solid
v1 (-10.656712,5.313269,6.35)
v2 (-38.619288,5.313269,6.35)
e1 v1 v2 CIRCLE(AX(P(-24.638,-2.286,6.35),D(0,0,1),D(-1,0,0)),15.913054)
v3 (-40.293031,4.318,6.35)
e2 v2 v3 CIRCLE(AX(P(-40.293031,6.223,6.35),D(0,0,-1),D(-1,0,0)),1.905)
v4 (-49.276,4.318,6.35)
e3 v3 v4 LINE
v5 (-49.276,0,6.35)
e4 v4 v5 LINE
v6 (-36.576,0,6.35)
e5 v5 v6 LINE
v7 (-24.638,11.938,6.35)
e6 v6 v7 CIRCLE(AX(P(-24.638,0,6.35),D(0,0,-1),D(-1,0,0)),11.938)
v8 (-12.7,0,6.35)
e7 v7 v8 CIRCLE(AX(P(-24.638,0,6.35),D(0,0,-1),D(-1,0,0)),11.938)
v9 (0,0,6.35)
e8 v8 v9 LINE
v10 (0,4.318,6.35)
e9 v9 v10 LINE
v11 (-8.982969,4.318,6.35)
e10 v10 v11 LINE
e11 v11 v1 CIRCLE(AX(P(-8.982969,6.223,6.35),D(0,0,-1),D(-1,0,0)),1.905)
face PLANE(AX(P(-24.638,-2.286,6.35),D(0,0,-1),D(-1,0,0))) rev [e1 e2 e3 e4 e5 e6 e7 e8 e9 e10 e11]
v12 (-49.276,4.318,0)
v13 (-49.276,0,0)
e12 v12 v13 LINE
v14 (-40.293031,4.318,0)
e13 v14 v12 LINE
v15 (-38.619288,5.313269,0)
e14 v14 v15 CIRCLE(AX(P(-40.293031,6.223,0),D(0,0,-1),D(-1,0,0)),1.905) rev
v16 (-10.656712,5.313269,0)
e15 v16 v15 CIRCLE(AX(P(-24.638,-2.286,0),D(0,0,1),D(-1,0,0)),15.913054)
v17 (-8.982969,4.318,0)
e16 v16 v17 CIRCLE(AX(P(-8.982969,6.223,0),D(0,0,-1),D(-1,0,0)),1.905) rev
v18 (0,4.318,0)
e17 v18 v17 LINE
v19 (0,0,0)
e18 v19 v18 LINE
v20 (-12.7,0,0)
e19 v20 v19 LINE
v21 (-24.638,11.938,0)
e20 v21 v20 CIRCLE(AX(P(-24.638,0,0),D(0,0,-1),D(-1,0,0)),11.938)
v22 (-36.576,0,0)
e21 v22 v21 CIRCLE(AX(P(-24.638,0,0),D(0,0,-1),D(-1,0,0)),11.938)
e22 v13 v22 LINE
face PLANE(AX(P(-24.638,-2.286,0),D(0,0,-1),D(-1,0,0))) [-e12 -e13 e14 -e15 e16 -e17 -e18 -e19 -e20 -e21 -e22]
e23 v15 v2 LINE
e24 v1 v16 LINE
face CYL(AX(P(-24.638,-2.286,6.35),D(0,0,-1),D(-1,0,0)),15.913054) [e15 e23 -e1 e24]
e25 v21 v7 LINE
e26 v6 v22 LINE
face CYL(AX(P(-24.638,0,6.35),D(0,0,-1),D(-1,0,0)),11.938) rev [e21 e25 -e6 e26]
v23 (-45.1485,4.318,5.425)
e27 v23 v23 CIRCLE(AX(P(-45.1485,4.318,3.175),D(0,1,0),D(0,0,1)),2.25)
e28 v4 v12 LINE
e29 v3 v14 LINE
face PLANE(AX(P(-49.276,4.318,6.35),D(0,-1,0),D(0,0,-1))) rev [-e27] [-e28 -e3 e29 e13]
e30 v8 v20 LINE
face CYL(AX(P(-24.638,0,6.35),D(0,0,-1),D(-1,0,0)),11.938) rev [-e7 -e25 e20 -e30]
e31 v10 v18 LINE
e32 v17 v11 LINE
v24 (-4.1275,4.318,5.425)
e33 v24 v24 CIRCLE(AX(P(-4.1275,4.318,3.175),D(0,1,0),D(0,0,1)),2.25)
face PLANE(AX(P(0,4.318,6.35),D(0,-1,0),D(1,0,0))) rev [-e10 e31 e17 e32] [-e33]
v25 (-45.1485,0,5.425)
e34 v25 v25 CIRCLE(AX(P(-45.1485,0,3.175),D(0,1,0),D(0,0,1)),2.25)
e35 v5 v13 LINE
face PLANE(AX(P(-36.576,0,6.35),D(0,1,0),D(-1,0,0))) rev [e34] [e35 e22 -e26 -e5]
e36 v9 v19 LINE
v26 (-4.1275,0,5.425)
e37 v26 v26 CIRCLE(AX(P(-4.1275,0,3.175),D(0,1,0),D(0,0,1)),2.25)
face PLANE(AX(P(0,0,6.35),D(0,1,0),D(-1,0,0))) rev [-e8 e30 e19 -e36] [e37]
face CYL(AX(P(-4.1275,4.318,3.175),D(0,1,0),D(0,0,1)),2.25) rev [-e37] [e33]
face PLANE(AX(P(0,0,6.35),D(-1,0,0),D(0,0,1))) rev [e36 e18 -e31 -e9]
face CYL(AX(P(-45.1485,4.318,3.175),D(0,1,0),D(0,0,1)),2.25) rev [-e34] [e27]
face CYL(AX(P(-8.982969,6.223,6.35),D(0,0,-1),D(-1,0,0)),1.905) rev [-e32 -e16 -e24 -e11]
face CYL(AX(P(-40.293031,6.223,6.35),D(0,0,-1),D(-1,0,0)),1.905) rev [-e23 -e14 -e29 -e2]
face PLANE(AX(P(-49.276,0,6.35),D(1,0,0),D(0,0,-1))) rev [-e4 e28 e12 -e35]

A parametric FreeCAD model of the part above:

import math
import FreeCAD as App
import Part
import Sketcher
from FreeCAD import Vector
Q = App.Units.Quantity


def edges_at(feature, points):
    """Names of the edges that pass closest to the given points."""
    edges = feature.Shape.Edges
    near = lambda p: min(range(len(edges)), key=lambda i: edges[i].distToShape(Part.Vertex(*p))[0])
    return sorted({f"Edge{near(p) + 1}" for p in points})

doc = App.newDocument("Part")
params = doc.addObject("Spreadsheet::Sheet", "Params")
for row, (alias, value) in enumerate([
    ("sketch1_radius", "0.47 in"),
    ("sketch1_width", "0.5 in"),
    ("sketch1_width2", "0.4 in"),
    ("sketch1_height", "0.17 in"),
    ("pad1_length", "0.25 in"),
    ("hole_diameter", "4.5 mm"),
    ("fillet_radius", "0.075 in"),
], start=1):
    params.set(f"A{row}", alias)
    params.set(f"B{row}", "=" + value)
    params.setAlias(f"B{row}", alias)

body = doc.addObject("PartDesign::Body", "Body")

sketch1 = body.newObject("Sketcher::SketchObject", "Sketch")
sketch1.AttachmentSupport = (doc.getObject("XY_Plane"), [""])
sketch1.MapMode = "FlatFace"
sketch1.addGeometry([
    Part.LineSegment(Vector(-12.7, 0, 0), Vector(0, 0, 0)),
    Part.LineSegment(Vector(0, 0, 0), Vector(0, 4.3, 0)),
    Part.LineSegment(Vector(0, 4.3, 0), Vector(-10.2, 4.3, 0)),
    Part.ArcOfCircle(Part.Circle(Vector(-24.6, -2.3, 0), Vector(0, 0, 1), 15.9), math.radians(25), math.radians(155)),
    Part.LineSegment(Vector(-39.1, 4.3, 0), Vector(-49.3, 4.3, 0)),
    Part.LineSegment(Vector(-49.3, 4.3, 0), Vector(-49.3, 0, 0)),
    Part.LineSegment(Vector(-49.3, 0, 0), Vector(-36.6, 0, 0)),
    Part.ArcOfCircle(Part.Circle(Vector(-24.6, 0, 0), Vector(0, 0, 1), 11.9), math.radians(0), math.radians(180)),
], False)
sketch1.addConstraint([
    Sketcher.Constraint("Coincident", 0, 2, 1, 1),
    Sketcher.Constraint("Coincident", 1, 2, 2, 1),
    Sketcher.Constraint("Coincident", 2, 2, 3, 1),
    Sketcher.Constraint("Coincident", 3, 2, 4, 1),
    Sketcher.Constraint("Coincident", 4, 2, 5, 1),
    Sketcher.Constraint("Coincident", 5, 2, 6, 1),
    Sketcher.Constraint("Coincident", 6, 2, 7, 2),
    Sketcher.Constraint("Coincident", 7, 1, 0, 1),
    Sketcher.Constraint("Horizontal", 0),
    Sketcher.Constraint("Vertical", 1),
    Sketcher.Constraint("Horizontal", 2),
    Sketcher.Constraint("Horizontal", 4),
    Sketcher.Constraint("Vertical", 5),
    Sketcher.Constraint("Horizontal", 6),
    Sketcher.Constraint("Coincident", 0, 2, -1, 1),
    Sketcher.Constraint("PointOnObject", 7, 3, -1),
    Sketcher.Constraint("PointOnObject", 5, 2, -1),
    Sketcher.Constraint("Horizontal", 2, 2, 3, 2),
    Sketcher.Constraint("Vertical", 3, 3, 7, 3),
    Sketcher.Constraint("Equal", 2, 4),
    Sketcher.Constraint("Radius", 7, Q("0.47 in")),
    Sketcher.Constraint("DistanceX", 0, 1, 0, 2, Q("0.5 in")),
    Sketcher.Constraint("DistanceX", 2, 2, 2, 1, Q("0.4 in")),
    Sketcher.Constraint("DistanceY", 1, 1, 1, 2, Q("0.17 in")),
    Sketcher.Constraint("DistanceY", 3, 3, -1, 1, Q("0.09 in")),
])
sketch1.setExpression("Constraints[20]", "Params.sketch1_radius")
sketch1.setExpression("Constraints[21]", "Params.sketch1_width")
sketch1.setExpression("Constraints[22]", "Params.sketch1_width2")
sketch1.setExpression("Constraints[23]", "Params.sketch1_height")
pad1 = body.newObject("PartDesign::Pad", "Pad")
pad1.Profile = sketch1
pad1.setExpression("Length", "Params.pad1_length")

sketch2 = body.newObject("Sketcher::SketchObject", "Sketch001")
sketch2.AttachmentSupport = (doc.getObject("XZ_Plane"), [""])
sketch2.MapMode = "FlatFace"
sketch2.AttachmentOffset = App.Placement(Vector(0, 0, -0.17 * 25.4), App.Rotation())
sketch2.addGeometry(Part.Circle(Vector(-4.1, 3.2, 0), Vector(0, 0, 1), 2.2), False)
sketch2.addConstraint([
    Sketcher.Constraint("Diameter", 0, 4.5),
    Sketcher.Constraint("DistanceY", -1, 1, 0, 3, Q("0.125 in")),
    Sketcher.Constraint("DistanceX", 0, 3, -1, 1, Q("0.1625 in")),
])
doc.recompute()
hole = body.newObject("PartDesign::Hole", "Hole")
hole.Profile = sketch2
hole.ThreadType = "None"
hole.setExpression("Diameter", "Params.hole_diameter")
hole.DepthType = "ThroughAll"
hole.Reversed = True
doc.recompute()

fillet = body.newObject("PartDesign::Fillet", "Fillet")
fillet.Base = (hole, edges_at(hole, [(-39.116, 4.318, 3.175), (-10.16, 4.318, 3.175)]))
fillet.setExpression("Radius", "Params.fillet_radius")
doc.recompute()

datumplane = body.newObject("PartDesign::Plane", "DatumPlane")
datumplane.AttachmentSupport = (doc.getObject("YZ_Plane"), [""])
datumplane.MapMode = "FlatFace"
datumplane.AttachmentOffset = App.Placement(Vector(0, 0, -0.97 * 25.4), App.Rotation())
mirrored = body.newObject("PartDesign::Mirrored", "Mirrored")
mirrored.Originals = [hole]
mirrored.MirrorPlane = (datumplane, [""])
body.Tip = mirrored

doc.recompute()
